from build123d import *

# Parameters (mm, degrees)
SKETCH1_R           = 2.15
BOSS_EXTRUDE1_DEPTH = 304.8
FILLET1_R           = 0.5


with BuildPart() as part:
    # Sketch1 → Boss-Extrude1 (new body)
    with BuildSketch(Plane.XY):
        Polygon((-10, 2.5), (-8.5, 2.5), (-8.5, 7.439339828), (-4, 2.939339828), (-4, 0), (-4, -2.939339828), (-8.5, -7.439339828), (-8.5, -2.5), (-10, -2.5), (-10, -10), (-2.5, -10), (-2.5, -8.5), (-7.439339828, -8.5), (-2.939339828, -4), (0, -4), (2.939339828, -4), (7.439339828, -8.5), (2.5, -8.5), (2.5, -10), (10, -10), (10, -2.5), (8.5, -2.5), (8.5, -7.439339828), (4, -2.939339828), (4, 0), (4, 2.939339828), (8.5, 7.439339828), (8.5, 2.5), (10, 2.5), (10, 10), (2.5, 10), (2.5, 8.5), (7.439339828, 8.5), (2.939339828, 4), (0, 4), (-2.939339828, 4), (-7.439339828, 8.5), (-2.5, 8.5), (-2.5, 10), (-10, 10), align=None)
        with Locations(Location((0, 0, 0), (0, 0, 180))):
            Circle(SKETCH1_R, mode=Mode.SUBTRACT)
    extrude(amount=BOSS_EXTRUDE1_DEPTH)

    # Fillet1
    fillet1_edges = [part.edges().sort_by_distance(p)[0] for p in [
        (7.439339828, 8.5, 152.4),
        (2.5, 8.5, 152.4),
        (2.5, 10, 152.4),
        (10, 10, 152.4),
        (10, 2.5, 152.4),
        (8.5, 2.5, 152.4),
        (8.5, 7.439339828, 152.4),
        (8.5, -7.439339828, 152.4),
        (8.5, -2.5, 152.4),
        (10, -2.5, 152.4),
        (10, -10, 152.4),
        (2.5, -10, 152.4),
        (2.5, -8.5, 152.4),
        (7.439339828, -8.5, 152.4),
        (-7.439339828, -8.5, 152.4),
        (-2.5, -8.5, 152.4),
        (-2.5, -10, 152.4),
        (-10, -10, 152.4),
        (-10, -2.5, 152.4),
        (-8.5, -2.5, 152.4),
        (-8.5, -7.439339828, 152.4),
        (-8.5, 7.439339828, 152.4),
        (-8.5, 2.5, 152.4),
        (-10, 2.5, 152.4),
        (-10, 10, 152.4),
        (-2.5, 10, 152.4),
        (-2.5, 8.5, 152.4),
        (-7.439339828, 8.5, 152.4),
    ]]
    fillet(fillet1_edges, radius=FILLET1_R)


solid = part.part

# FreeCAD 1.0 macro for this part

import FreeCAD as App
import Part
import Sketcher

V = App.Vector


def edges_at(feature, points):
    """Names of the edges that pass closest to the given points."""
    edges = feature.Shape.Edges
    near = lambda p: min(range(len(edges)), key=lambda i: edges[i].distToShape(Part.Vertex(*p))[0])
    return sorted({f"Edge{near(p) + 1}" for p in points})


def add_polygon(sketch, points):
    """Adds a closed chain of lines whose ends are joined by coincident constraints."""
    first, n = sketch.GeometryCount, len(points)
    for a, b in zip(points, points[1:] + points[:1]):
        sketch.addGeometry(Part.LineSegment(App.Vector(*a, 0), App.Vector(*b, 0)), False)
    for i in range(n):
        sketch.addConstraint(Sketcher.Constraint("Coincident", first + i, 2, first + (i + 1) % n, 1))

doc = App.newDocument("Part")
body = doc.addObject("PartDesign::Body", "Body")

# Sketch on XY plane
sketch1 = body.newObject("Sketcher::SketchObject", "Sketch")
sketch1.AttachmentSupport = (doc.getObject("XY_Plane"), [""])
sketch1.MapMode = "FlatFace"
add_polygon(sketch1, [(-10, 2.5), (-8.5, 2.5), (-8.5, 7.43934), (-4, 2.93934), (-4, -2.93934), (-8.5, -7.43934), (-8.5, -2.5), (-10, -2.5), (-10, -10), (-2.5, -10), (-2.5, -8.5), (-7.43934, -8.5), (-2.93934, -4), (2.93934, -4), (7.43934, -8.5), (2.5, -8.5), (2.5, -10), (10, -10), (10, -2.5), (8.5, -2.5), (8.5, -7.43934), (4, -2.93934), (4, 2.93934), (8.5, 7.43934), (8.5, 2.5), (10, 2.5), (10, 10), (2.5, 10), (2.5, 8.5), (7.43934, 8.5), (2.93934, 4), (-2.93934, 4), (-7.43934, 8.5), (-2.5, 8.5), (-2.5, 10), (-10, 10)])  # lines 0-35
sketch1.addGeometry(Part.Circle(V(0, 0, 0), V(0, 0, 1), 2.15), False)  # 36
sketch1.addConstraint(Sketcher.Constraint("Horizontal", 0))
sketch1.addConstraint(Sketcher.Constraint("Vertical", 1))
sketch1.addConstraint(Sketcher.Constraint("Vertical", 3))
sketch1.addConstraint(Sketcher.Constraint("Vertical", 5))
sketch1.addConstraint(Sketcher.Constraint("Horizontal", 6))
sketch1.addConstraint(Sketcher.Constraint("Vertical", 7))
sketch1.addConstraint(Sketcher.Constraint("Horizontal", 8))
sketch1.addConstraint(Sketcher.Constraint("Vertical", 9))
sketch1.addConstraint(Sketcher.Constraint("Horizontal", 10))
sketch1.addConstraint(Sketcher.Constraint("Horizontal", 12))
sketch1.addConstraint(Sketcher.Constraint("Horizontal", 14))
sketch1.addConstraint(Sketcher.Constraint("Vertical", 15))
sketch1.addConstraint(Sketcher.Constraint("Horizontal", 16))
sketch1.addConstraint(Sketcher.Constraint("Vertical", 17))
sketch1.addConstraint(Sketcher.Constraint("Horizontal", 18))
sketch1.addConstraint(Sketcher.Constraint("Vertical", 19))
sketch1.addConstraint(Sketcher.Constraint("Vertical", 21))
sketch1.addConstraint(Sketcher.Constraint("Vertical", 23))
sketch1.addConstraint(Sketcher.Constraint("Horizontal", 24))
sketch1.addConstraint(Sketcher.Constraint("Vertical", 25))
sketch1.addConstraint(Sketcher.Constraint("Horizontal", 26))
sketch1.addConstraint(Sketcher.Constraint("Vertical", 27))
sketch1.addConstraint(Sketcher.Constraint("Horizontal", 28))
sketch1.addConstraint(Sketcher.Constraint("Horizontal", 30))
sketch1.addConstraint(Sketcher.Constraint("Horizontal", 32))
sketch1.addConstraint(Sketcher.Constraint("Vertical", 33))
sketch1.addConstraint(Sketcher.Constraint("Horizontal", 34))
sketch1.addConstraint(Sketcher.Constraint("Vertical", 35))
sketch1.addConstraint(Sketcher.Constraint("Coincident", 36, 3, -1, 1))
sketch1.addConstraint(Sketcher.Constraint("Symmetric", 0, 2, 18, 2, -1, 1))
sketch1.addConstraint(Sketcher.Constraint("Symmetric", 2, 2, 20, 2, -1, 1))
sketch1.addConstraint(Sketcher.Constraint("Symmetric", 4, 2, 22, 2, -1, 1))
sketch1.addConstraint(Sketcher.Constraint("Symmetric", 6, 2, 24, 2, -1, 1))
sketch1.addConstraint(Sketcher.Constraint("Symmetric", 8, 2, 26, 2, -1, 1))
sketch1.addConstraint(Sketcher.Constraint("Symmetric", 10, 2, 28, 2, -1, 1))
sketch1.addConstraint(Sketcher.Constraint("Symmetric", 11, 2, 29, 2, -1, 1))
sketch1.addConstraint(Sketcher.Constraint("Symmetric", 13, 2, 31, 2, -1, 1))
sketch1.addConstraint(Sketcher.Constraint("Symmetric", 15, 2, 33, 2, -1, 1))
sketch1.addConstraint(Sketcher.Constraint("Symmetric", 10, 2, 13, 2, -2))
sketch1.addConstraint(Sketcher.Constraint("Symmetric", 8, 2, 15, 2, -2))
sketch1.addConstraint(Sketcher.Constraint("Symmetric", 6, 2, 17, 2, -2))
sketch1.addConstraint(Sketcher.Constraint("Symmetric", 4, 2, 19, 2, -2))
sketch1.addConstraint(Sketcher.Constraint("Perpendicular", 2, 4))
sketch1.addConstraint(Sketcher.Constraint("Parallel", 4, 11))
sketch1.addConstraint(Sketcher.Constraint("Perpendicular", 11, 13))
sketch1.addConstraint(Sketcher.Constraint("Parallel", 13, 20))
sketch1.addConstraint(Sketcher.Constraint("Perpendicular", 20, 22))
sketch1.addConstraint(Sketcher.Constraint("Perpendicular", 29, 31))
sketch1.addConstraint(Sketcher.Constraint("Horizontal", 3, 2, 20, 2))
sketch1.addConstraint(Sketcher.Constraint("Vertical", 7, 2, 34, 2))
sketch1.addConstraint(Sketcher.Constraint("Equal", 32, 1))
sketch1.addConstraint(Sketcher.Constraint("Equal", 30, 3))
sketch1.addConstraint(Sketcher.Constraint("Equal", 34, 7))
sketch1.addConstraint(Sketcher.Constraint("Equal", 24, 9))
sketch1.addConstraint(Sketcher.Constraint("Equal", 4, 11))
sketch1.addConstraint(Sketcher.Constraint("Diameter", 36, 4.3))
sketch1.addConstraint(Sketcher.Constraint("DistanceX", 0, 1, 0, 2, 1.5))
sketch1.addConstraint(Sketcher.Constraint("DistanceX", 8, 1, 8, 2, 7.5))
sketch1.addConstraint(Sketcher.Constraint("DistanceX", 2, 2, -1, 1, 4.0))
sketch1.addConstraint(Sketcher.Constraint("DistanceX", 6, 2, -1, 1, 10.0))
sketch1.addConstraint(Sketcher.Constraint("DistanceX", 10, 2, 10, 1, 4.93934))
pad1 = body.newObject("PartDesign::Pad", "Pad")
pad1.Profile = sketch1
pad1.Length = 304.8
doc.recompute()

fillet = body.newObject("PartDesign::Fillet", "Fillet")
fillet.Base = (pad1, edges_at(pad1, [
    (7.439, 8.5, 152.4),
    (2.5, 8.5, 152.4),
    (2.5, 10, 152.4),
    (10, 10, 152.4),
    (10, 2.5, 152.4),
    (8.5, 2.5, 152.4),
    (8.5, 7.439, 152.4),
    (8.5, -7.439, 152.4),
    (8.5, -2.5, 152.4),
    (10, -2.5, 152.4),
    (10, -10, 152.4),
    (2.5, -10, 152.4),
    (2.5, -8.5, 152.4),
    (7.439, -8.5, 152.4),
    (-7.439, -8.5, 152.4),
    (-2.5, -8.5, 152.4),
    (-2.5, -10, 152.4),
    (-10, -10, 152.4),
    (-10, -2.5, 152.4),
    (-8.5, -2.5, 152.4),
    (-8.5, -7.439, 152.4),
    (-8.5, 7.439, 152.4),
    (-8.5, 2.5, 152.4),
    (-10, 2.5, 152.4),
    (-10, 10, 152.4),
    (-2.5, 10, 152.4),
    (-2.5, 8.5, 152.4),
    (-7.439, 8.5, 152.4),
]))
fillet.Radius = 0.5

doc.recompute()
